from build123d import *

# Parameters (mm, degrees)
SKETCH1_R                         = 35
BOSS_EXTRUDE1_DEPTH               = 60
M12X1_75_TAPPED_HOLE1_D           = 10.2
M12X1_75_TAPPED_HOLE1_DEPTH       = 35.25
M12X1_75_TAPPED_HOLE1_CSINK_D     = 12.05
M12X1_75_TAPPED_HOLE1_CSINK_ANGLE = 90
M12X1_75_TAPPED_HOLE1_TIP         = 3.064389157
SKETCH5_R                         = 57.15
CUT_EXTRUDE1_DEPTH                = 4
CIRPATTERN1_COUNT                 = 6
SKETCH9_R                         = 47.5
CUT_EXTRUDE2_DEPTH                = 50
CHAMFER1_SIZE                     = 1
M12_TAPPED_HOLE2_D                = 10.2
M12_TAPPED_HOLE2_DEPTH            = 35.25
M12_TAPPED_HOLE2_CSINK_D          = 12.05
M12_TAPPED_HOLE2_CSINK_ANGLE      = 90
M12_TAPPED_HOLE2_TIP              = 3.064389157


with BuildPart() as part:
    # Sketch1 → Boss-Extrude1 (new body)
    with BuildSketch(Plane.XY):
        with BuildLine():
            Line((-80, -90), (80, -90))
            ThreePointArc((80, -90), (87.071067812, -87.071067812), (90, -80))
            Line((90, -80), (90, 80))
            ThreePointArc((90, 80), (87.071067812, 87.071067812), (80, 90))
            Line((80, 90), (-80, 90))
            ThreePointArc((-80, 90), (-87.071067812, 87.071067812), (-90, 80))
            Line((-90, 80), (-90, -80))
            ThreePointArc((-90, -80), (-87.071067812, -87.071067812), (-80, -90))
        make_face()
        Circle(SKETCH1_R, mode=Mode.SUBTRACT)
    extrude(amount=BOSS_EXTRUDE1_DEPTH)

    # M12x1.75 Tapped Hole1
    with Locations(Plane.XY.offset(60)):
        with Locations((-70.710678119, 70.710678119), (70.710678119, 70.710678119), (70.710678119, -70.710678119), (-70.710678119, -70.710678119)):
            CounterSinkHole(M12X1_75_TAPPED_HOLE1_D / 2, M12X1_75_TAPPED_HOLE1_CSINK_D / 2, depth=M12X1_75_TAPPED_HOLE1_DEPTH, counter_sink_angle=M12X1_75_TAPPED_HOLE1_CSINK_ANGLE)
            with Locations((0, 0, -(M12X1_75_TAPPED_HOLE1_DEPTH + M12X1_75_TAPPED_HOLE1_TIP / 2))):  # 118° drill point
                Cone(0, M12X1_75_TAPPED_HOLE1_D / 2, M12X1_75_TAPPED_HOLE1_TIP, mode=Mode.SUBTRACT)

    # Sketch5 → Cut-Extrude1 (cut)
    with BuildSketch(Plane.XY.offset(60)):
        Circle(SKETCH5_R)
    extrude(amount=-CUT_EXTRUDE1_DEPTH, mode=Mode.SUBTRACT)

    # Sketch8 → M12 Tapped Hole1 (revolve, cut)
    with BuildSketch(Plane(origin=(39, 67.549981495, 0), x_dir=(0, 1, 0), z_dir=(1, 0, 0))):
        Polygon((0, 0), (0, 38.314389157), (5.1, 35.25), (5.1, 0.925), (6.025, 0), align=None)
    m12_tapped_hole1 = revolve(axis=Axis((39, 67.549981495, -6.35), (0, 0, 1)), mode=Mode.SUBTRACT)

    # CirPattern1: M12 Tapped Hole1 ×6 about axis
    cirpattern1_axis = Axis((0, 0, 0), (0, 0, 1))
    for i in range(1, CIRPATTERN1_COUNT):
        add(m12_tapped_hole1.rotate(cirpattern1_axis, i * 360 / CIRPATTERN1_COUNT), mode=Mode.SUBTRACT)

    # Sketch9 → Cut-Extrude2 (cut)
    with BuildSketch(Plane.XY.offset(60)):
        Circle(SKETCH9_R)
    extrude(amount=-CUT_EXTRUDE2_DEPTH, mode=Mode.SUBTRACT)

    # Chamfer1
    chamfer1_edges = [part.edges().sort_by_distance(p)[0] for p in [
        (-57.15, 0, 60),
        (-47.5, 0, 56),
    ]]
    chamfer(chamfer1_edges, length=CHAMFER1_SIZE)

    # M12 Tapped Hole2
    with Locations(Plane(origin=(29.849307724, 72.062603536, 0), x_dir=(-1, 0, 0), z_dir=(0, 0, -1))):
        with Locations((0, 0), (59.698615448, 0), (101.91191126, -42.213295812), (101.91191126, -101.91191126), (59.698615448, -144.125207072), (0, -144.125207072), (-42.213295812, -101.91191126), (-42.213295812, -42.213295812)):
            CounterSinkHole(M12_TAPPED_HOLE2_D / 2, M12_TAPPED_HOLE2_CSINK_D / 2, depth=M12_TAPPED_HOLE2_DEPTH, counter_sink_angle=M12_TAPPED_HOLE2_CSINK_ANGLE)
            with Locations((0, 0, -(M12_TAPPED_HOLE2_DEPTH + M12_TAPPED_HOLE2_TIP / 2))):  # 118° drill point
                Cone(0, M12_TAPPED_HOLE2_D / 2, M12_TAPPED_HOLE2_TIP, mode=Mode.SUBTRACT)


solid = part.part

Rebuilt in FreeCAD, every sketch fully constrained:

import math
import FreeCAD as App
import Part
import Sketcher

V = App.Vector
Q = App.Units.Quantity


def edges_at(feature, points):
    """Names of the edges that pass closest to the given points."""
    edges = feature.Shape.Edges
    near = lambda p: min(range(len(edges)), key=lambda i: edges[i].distToShape(Part.Vertex(*p))[0])
    return sorted({f"Edge{near(p) + 1}" for p in points})


def add_polygon(sketch, points):
    """Adds a closed chain of lines whose ends are joined by coincident constraints."""
    first, n = sketch.GeometryCount, len(points)
    for a, b in zip(points, points[1:] + points[:1]):
        sketch.addGeometry(Part.LineSegment(App.Vector(*a, 0), App.Vector(*b, 0)), False)
    for i in range(n):
        sketch.addConstraint(Sketcher.Constraint("Coincident", first + i, 2, first + (i + 1) % n, 1))

doc = App.newDocument("Part")
body = doc.addObject("PartDesign::Body", "Body")

sketch1 = doc.addObject("Sketcher::SketchObject", "Sketch")
body.addObject(sketch1)
sketch1.AttachmentSupport = (doc.XY_Plane, [""])
sketch1.MapMode = "FlatFace"
sketch1.addGeometry([
    Part.LineSegment(V(-80, -90, 0), V(80, -90, 0)),
    Part.ArcOfCircle(Part.Circle(V(80, -80, 0), V(0, 0, 1), 10), math.radians(-90), math.radians(0)),
    Part.LineSegment(V(90, -80, 0), V(90, 80, 0)),
    Part.ArcOfCircle(Part.Circle(V(80, 80, 0), V(0, 0, 1), 10), math.radians(0), math.radians(90)),
    Part.LineSegment(V(80, 90, 0), V(-80, 90, 0)),
    Part.ArcOfCircle(Part.Circle(V(-80, 80, 0), V(0, 0, 1), 10), math.radians(90), math.radians(180)),
    Part.LineSegment(V(-90, 80, 0), V(-90, -80, 0)),
    Part.ArcOfCircle(Part.Circle(V(-80, -80, 0), V(0, 0, 1), 10), math.radians(180), math.radians(270)),
    Part.Circle(V(0, 0, 0), V(0, 0, 1), 35),
], False)
sketch1.addConstraint([
    Sketcher.Constraint("Tangent", 0, 2, 1, 1),
    Sketcher.Constraint("Tangent", 1, 2, 2, 1),
    Sketcher.Constraint("Tangent", 2, 2, 3, 1),
    Sketcher.Constraint("Tangent", 3, 2, 4, 1),
    Sketcher.Constraint("Tangent", 4, 2, 5, 1),
    Sketcher.Constraint("Tangent", 5, 2, 6, 1),
    Sketcher.Constraint("Tangent", 6, 2, 7, 1),
    Sketcher.Constraint("Tangent", 7, 2, 0, 1),
    Sketcher.Constraint("Horizontal", 0),
    Sketcher.Constraint("Vertical", 2),
    Sketcher.Constraint("Horizontal", 4),
    Sketcher.Constraint("Vertical", 6),
    Sketcher.Constraint("Coincident", 8, 3, -1, 1),
    Sketcher.Constraint("Equal", 1, 3),
    Sketcher.Constraint("Equal", 3, 5),
    Sketcher.Constraint("Equal", 5, 7),
    Sketcher.Constraint("Symmetric", 1, 3, 5, 3, -1, 1),
    Sketcher.Constraint("Equal", 4, 2),
    Sketcher.Constraint("Diameter", 8, 70.0),
    Sketcher.Constraint("Radius", 1, 10.0),
    Sketcher.Constraint("DistanceX", 0, 1, 0, 2, 160.0),
])
pad1 = doc.addObject("PartDesign::Pad", "Pad")
body.addObject(pad1)
pad1.Profile = sketch1
pad1.Length = 60

sketch2 = doc.addObject("Sketcher::SketchObject", "Sketch001")
body.addObject(sketch2)
sketch2.AttachmentSupport = (doc.XY_Plane, [""])
sketch2.MapMode = "FlatFace"
sketch2.AttachmentOffset = App.Placement(V(0, 0, 60), App.Rotation())
sketch2.addGeometry([
    Part.Circle(V(-71, 71, 0), V(0, 0, 1), 5),
    Part.Circle(V(71, 71, 0), V(0, 0, 1), 5),
    Part.Circle(V(71, -71, 0), V(0, 0, 1), 5),
    Part.Circle(V(-71, -71, 0), V(0, 0, 1), 5),
], False)
sketch2.addConstraint([
    Sketcher.Constraint("Equal", 0, 1),
    Sketcher.Constraint("Equal", 1, 2),
    Sketcher.Constraint("Equal", 2, 3),
    Sketcher.Constraint("Symmetric", 0, 3, 2, 3, -1, 1),
    Sketcher.Constraint("Symmetric", 1, 3, 3, 3, -1, 1),
    Sketcher.Constraint("Symmetric", 0, 3, 1, 3, -2),
    Sketcher.Constraint("Diameter", 0, 10.2),
    Sketcher.Constraint("DistanceX", 0, 3, -1, 1, 70.710678),
    Sketcher.Constraint("DistanceY", -1, 1, 0, 3, 70.710678),
])
doc.recompute()
hole = doc.addObject("PartDesign::Hole", "Hole")
body.addObject(hole)
hole.Profile = sketch2
hole.ThreadType = "None"
hole.Diameter = 10.2
hole.DepthType = "Dimension"
hole.Depth = 35.25
hole.DrillPoint = "Angled"
hole.DrillPointAngle = 118
hole.HoleCutType = "Countersink"
hole.HoleCutDiameter = 12.05
hole.HoleCutCountersinkAngle = 90

sketch3 = doc.addObject("Sketcher::SketchObject", "Sketch002")
body.addObject(sketch3)
sketch3.AttachmentSupport = (doc.XY_Plane, [""])
sketch3.MapMode = "FlatFace"
sketch3.AttachmentOffset = App.Placement(V(0, 0, 60), App.Rotation())
sketch3.addGeometry(Part.Circle(V(0, 0, 0), V(0, 0, 1), 57), False)
sketch3.addConstraint([
    Sketcher.Constraint("Coincident", 0, 3, -1, 1),
    Sketcher.Constraint("Diameter", 0, 114.3),
])
pocket1 = doc.addObject("PartDesign::Pocket", "Pocket")
body.addObject(pocket1)
pocket1.Profile = sketch3
pocket1.Length = 4

sketch4 = doc.addObject("Sketcher::SketchObject", "Sketch003")
body.addObject(sketch4)
sketch4.AttachmentSupport = (doc.YZ_Plane, [""])
sketch4.MapMode = "FlatFace"
sketch4.AttachmentOffset = App.Placement(V(0, 0, 39), App.Rotation())
add_polygon(sketch4, [(67.5, 38.3), (67.5, 0), (73.6, 0), (72.6, 0.9), (72.6, 35.2)])
sketch4.addGeometry(Part.LineSegment(V(67.5, 0, 0), V(67.5, 38.3, 0)), True)
sketch4.addConstraint([
    Sketcher.Constraint("Vertical", 0),
    Sketcher.Constraint("Horizontal", 1),
    Sketcher.Constraint("Vertical", 3),
    Sketcher.Constraint("Vertical", 5),
    Sketcher.Constraint("Coincident", 5, 1, 0, 2),
    Sketcher.Constraint("PointOnObject", 0, 2, -1),
    Sketcher.Constraint("Equal", 0, 5),
    Sketcher.Constraint("Angle", 2, Q("135 deg")),
    Sketcher.Constraint("Angle", 4, Q("149 deg")),
    Sketcher.Constraint("DistanceX", 0, 2, 2, 2, 5.1),
    Sketcher.Constraint("DistanceX", 1, 1, 1, 2, 6.025),
    Sketcher.Constraint("DistanceY", 3, 1, 3, 2, 34.325),
    Sketcher.Constraint("DistanceX", -1, 1, 0, 2, 67.549981),
])
groove = doc.addObject("PartDesign::Groove", "Groove")
body.addObject(groove)
groove.Profile = sketch4
groove.ReferenceAxis = (sketch4, ["Axis0"])
groove.Angle = 360
doc.recompute()

polarpattern = doc.addObject("PartDesign::PolarPattern", "PolarPattern")
body.addObject(polarpattern)
polarpattern.Originals = [groove]
polarpattern.Axis = (doc.Z_Axis, [""])
polarpattern.Angle = 360
polarpattern.Occurrences = 6
body.Tip = polarpattern

sketch5 = doc.addObject("Sketcher::SketchObject", "Sketch004")
body.addObject(sketch5)
sketch5.AttachmentSupport = (doc.XY_Plane, [""])
sketch5.MapMode = "FlatFace"
sketch5.AttachmentOffset = App.Placement(V(0, 0, 60), App.Rotation())
sketch5.addGeometry(Part.Circle(V(0, 0, 0), V(0, 0, 1), 48), False)
sketch5.addConstraint([
    Sketcher.Constraint("Coincident", 0, 3, -1, 1),
    Sketcher.Constraint("Diameter", 0, 95.0),
])
pocket2 = doc.addObject("PartDesign::Pocket", "Pocket001")
body.addObject(pocket2)
pocket2.Profile = sketch5
pocket2.Length = 50
doc.recompute()

chamfer = doc.addObject("PartDesign::Chamfer", "Chamfer")
body.addObject(chamfer)
chamfer.Base = (pocket2, edges_at(pocket2, [(-57.15, 0, 60), (-47.5, 0, 56)]))
chamfer.Size = 1

sketch6 = doc.addObject("Sketcher::SketchObject", "Sketch005")
body.addObject(sketch6)
sketch6.AttachmentSupport = (doc.XY_Plane, [""])
sketch6.MapMode = "FlatFace"
sketch6.addGeometry([
    Part.Circle(V(30, 72, 0), V(0, 0, 1), 5),
    Part.Circle(V(-30, 72, 0), V(0, 0, 1), 5),
    Part.Circle(V(-72, 30, 0), V(0, 0, 1), 5),
    Part.Circle(V(-72, -30, 0), V(0, 0, 1), 5),
    Part.Circle(V(-30, -72, 0), V(0, 0, 1), 5),
    Part.Circle(V(30, -72, 0), V(0, 0, 1), 5),
    Part.Circle(V(72, -30, 0), V(0, 0, 1), 5),
    Part.Circle(V(72, 30, 0), V(0, 0, 1), 5),
], False)
sketch6.addConstraint([
    Sketcher.Constraint("Equal", 0, 1),
    Sketcher.Constraint("Equal", 1, 2),
    Sketcher.Constraint("Equal", 2, 3),
    Sketcher.Constraint("Equal", 3, 4),
    Sketcher.Constraint("Equal", 4, 5),
    Sketcher.Constraint("Equal", 5, 6),
    Sketcher.Constraint("Equal", 6, 7),
    Sketcher.Constraint("Symmetric", 0, 3, 4, 3, -1, 1),
    Sketcher.Constraint("Symmetric", 1, 3, 5, 3, -1, 1),
    Sketcher.Constraint("Symmetric", 2, 3, 6, 3, -1, 1),
    Sketcher.Constraint("Symmetric", 3, 3, 7, 3, -1, 1),
    Sketcher.Constraint("Symmetric", 0, 3, 1, 3, -2),
    Sketcher.Constraint("Symmetric", 3, 3, 6, 3, -2),
    Sketcher.Constraint("Diameter", 0, 10.2),
    Sketcher.Constraint("DistanceX", 2, 3, 0, 3, 101.911911),
    Sketcher.Constraint("DistanceY", 3, 3, 1, 3, 101.911911),
    Sketcher.Constraint("DistanceX", -1, 1, 0, 3, 29.849308),
    Sketcher.Constraint("DistanceY", -1, 1, 0, 3, 72.062604),
])
doc.recompute()
hole2 = doc.addObject("PartDesign::Hole", "Hole001")
body.addObject(hole2)
hole2.Profile = sketch6
hole2.ThreadType = "None"
hole2.Diameter = 10.2
hole2.DepthType = "Dimension"
hole2.Depth = 35.25
hole2.DrillPoint = "Angled"
hole2.DrillPointAngle = 118
hole2.HoleCutType = "Countersink"
hole2.HoleCutDiameter = 12.05
hole2.HoleCutCountersinkAngle = 90
hole2.Reversed = True

doc.recompute()
